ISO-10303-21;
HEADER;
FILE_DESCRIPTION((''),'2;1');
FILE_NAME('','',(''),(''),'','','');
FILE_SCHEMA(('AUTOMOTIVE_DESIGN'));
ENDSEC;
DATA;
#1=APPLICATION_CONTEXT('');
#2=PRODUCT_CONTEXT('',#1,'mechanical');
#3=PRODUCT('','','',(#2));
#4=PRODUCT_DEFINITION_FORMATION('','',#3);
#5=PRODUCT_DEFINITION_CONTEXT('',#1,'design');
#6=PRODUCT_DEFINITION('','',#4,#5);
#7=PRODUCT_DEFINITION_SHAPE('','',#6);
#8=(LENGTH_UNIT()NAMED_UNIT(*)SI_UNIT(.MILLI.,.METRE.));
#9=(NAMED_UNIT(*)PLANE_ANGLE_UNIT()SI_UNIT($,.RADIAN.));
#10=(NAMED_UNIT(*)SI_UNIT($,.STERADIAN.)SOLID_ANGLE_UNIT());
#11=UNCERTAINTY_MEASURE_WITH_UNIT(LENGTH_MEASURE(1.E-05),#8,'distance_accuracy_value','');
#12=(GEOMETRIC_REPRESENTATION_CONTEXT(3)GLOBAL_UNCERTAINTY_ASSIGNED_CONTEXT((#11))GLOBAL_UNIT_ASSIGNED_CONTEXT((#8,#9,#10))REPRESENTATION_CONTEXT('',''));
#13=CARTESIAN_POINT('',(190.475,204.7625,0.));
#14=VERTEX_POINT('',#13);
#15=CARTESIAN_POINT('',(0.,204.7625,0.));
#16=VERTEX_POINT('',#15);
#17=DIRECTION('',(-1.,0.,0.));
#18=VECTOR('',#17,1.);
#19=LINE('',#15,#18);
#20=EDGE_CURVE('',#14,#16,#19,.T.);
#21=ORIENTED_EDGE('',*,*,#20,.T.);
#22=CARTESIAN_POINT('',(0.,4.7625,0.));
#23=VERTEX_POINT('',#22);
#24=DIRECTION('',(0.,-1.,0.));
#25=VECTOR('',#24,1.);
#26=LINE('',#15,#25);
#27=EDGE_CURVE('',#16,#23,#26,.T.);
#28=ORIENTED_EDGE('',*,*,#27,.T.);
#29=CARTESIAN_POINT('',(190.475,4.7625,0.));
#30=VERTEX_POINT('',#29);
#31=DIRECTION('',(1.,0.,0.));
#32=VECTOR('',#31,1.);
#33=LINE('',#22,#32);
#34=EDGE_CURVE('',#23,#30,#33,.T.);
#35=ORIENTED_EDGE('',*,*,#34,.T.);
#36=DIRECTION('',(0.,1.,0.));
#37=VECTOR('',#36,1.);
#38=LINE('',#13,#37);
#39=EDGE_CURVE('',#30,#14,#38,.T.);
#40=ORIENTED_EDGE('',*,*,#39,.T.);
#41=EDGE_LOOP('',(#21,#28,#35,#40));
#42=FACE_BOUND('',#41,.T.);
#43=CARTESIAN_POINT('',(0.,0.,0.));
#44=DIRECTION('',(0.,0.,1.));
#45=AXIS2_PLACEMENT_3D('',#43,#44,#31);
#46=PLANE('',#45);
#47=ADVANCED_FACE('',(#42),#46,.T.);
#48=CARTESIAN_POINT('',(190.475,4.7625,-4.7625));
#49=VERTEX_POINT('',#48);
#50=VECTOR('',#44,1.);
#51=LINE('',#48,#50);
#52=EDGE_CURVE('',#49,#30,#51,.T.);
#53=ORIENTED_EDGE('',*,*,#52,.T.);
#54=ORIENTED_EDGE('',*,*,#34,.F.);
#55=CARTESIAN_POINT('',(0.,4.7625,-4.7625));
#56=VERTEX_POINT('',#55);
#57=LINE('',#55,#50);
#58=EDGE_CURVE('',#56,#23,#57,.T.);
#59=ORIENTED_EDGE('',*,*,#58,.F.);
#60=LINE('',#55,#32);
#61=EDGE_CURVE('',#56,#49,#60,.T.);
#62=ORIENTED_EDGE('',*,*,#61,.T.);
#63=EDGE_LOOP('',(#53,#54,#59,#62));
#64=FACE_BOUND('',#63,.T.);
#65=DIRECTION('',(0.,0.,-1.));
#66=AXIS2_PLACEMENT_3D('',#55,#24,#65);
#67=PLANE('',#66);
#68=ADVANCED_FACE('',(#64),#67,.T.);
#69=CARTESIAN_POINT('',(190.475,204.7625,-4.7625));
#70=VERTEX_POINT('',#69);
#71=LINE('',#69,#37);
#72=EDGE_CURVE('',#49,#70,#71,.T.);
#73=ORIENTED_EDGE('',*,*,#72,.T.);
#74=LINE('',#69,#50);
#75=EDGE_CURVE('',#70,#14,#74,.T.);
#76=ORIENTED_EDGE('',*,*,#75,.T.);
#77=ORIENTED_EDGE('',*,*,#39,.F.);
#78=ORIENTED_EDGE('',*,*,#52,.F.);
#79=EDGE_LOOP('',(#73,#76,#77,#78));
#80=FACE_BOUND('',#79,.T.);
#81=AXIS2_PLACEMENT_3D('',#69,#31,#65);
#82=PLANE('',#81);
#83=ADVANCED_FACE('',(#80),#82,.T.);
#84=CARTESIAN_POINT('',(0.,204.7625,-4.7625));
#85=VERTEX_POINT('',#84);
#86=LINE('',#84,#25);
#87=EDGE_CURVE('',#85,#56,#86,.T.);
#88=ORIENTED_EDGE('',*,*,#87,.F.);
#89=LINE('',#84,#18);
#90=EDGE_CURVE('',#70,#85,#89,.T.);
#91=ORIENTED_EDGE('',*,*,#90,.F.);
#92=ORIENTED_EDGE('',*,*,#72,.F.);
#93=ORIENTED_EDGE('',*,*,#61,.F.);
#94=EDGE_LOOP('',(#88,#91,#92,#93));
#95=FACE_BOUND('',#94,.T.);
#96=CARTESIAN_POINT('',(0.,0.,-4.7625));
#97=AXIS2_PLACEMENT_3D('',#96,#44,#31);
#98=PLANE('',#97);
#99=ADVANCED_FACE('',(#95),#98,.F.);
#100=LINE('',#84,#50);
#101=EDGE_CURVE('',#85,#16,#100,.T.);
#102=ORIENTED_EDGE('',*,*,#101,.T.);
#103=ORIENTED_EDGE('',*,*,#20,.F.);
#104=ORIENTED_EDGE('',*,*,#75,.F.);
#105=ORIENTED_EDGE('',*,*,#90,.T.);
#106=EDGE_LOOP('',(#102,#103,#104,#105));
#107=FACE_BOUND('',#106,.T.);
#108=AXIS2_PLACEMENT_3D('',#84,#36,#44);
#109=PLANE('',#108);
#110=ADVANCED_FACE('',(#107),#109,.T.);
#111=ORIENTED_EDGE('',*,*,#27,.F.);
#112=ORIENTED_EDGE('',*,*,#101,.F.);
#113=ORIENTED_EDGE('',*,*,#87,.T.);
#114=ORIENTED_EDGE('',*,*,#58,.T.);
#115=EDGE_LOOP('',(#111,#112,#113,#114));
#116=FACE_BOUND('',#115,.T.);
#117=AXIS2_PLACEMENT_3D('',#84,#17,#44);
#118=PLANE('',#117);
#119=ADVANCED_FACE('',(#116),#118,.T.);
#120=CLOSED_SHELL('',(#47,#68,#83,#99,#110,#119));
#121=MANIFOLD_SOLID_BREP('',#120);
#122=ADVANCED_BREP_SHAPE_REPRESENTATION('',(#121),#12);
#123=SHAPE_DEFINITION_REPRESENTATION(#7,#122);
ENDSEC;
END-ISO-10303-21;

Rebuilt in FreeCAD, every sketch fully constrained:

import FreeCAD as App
import Part
import Sketcher


def add_polygon(sketch, points):
    """Adds a closed chain of lines whose ends are joined by coincident constraints."""
    first, n = sketch.GeometryCount, len(points)
    for a, b in zip(points, points[1:] + points[:1]):
        sketch.addGeometry(Part.LineSegment(App.Vector(*a, 0), App.Vector(*b, 0)), False)
    for i in range(n):
        sketch.addConstraint(Sketcher.Constraint("Coincident", first + i, 2, first + (i + 1) % n, 1))

doc = App.newDocument("Part")
params = doc.addObject("Spreadsheet::Sheet", "Params")
for row, (alias, value) in enumerate([
    ("sketch1_height", "200 mm"),
    ("pad1_length", "4.7625 mm"),
], start=1):
    params.set(f"A{row}", alias)
    params.set(f"B{row}", "=" + value)
    params.setAlias(f"B{row}", alias)

body = doc.addObject("PartDesign::Body", "Body")

# Sketch on XY plane
sketch1 = body.newObject("Sketcher::SketchObject", "Sketch")
sketch1.AttachmentSupport = (doc.getObject("XY_Plane"), [""])
sketch1.MapMode = "FlatFace"
add_polygon(sketch1, [(0, 204.7625), (0, 4.7625), (190.475, 4.7625), (190.475, 204.7625)])  # lines 0-3
sketch1.addConstraint(Sketcher.Constraint("Vertical", 0))
sketch1.addConstraint(Sketcher.Constraint("Horizontal", 1))
sketch1.addConstraint(Sketcher.Constraint("Vertical", 2))
sketch1.addConstraint(Sketcher.Constraint("Horizontal", 3))
sketch1.addConstraint(Sketcher.Constraint("PointOnObject", 0, 2, -2))
sketch1.addConstraint(Sketcher.Constraint("DistanceY", 0, 2, 0, 1, 200.0))
sketch1.addConstraint(Sketcher.Constraint("DistanceX", 1, 1, 1, 2, 190.475))
sketch1.addConstraint(Sketcher.Constraint("DistanceY", -1, 1, 0, 2, 4.7625))
sketch1.setExpression("Constraints[9]", "Params.sketch1_height")
pad1 = body.newObject("PartDesign::Pad", "Pad")
pad1.Profile = sketch1
pad1.setExpression("Length", "Params.pad1_length")
pad1.Reversed = True

doc.recompute()
